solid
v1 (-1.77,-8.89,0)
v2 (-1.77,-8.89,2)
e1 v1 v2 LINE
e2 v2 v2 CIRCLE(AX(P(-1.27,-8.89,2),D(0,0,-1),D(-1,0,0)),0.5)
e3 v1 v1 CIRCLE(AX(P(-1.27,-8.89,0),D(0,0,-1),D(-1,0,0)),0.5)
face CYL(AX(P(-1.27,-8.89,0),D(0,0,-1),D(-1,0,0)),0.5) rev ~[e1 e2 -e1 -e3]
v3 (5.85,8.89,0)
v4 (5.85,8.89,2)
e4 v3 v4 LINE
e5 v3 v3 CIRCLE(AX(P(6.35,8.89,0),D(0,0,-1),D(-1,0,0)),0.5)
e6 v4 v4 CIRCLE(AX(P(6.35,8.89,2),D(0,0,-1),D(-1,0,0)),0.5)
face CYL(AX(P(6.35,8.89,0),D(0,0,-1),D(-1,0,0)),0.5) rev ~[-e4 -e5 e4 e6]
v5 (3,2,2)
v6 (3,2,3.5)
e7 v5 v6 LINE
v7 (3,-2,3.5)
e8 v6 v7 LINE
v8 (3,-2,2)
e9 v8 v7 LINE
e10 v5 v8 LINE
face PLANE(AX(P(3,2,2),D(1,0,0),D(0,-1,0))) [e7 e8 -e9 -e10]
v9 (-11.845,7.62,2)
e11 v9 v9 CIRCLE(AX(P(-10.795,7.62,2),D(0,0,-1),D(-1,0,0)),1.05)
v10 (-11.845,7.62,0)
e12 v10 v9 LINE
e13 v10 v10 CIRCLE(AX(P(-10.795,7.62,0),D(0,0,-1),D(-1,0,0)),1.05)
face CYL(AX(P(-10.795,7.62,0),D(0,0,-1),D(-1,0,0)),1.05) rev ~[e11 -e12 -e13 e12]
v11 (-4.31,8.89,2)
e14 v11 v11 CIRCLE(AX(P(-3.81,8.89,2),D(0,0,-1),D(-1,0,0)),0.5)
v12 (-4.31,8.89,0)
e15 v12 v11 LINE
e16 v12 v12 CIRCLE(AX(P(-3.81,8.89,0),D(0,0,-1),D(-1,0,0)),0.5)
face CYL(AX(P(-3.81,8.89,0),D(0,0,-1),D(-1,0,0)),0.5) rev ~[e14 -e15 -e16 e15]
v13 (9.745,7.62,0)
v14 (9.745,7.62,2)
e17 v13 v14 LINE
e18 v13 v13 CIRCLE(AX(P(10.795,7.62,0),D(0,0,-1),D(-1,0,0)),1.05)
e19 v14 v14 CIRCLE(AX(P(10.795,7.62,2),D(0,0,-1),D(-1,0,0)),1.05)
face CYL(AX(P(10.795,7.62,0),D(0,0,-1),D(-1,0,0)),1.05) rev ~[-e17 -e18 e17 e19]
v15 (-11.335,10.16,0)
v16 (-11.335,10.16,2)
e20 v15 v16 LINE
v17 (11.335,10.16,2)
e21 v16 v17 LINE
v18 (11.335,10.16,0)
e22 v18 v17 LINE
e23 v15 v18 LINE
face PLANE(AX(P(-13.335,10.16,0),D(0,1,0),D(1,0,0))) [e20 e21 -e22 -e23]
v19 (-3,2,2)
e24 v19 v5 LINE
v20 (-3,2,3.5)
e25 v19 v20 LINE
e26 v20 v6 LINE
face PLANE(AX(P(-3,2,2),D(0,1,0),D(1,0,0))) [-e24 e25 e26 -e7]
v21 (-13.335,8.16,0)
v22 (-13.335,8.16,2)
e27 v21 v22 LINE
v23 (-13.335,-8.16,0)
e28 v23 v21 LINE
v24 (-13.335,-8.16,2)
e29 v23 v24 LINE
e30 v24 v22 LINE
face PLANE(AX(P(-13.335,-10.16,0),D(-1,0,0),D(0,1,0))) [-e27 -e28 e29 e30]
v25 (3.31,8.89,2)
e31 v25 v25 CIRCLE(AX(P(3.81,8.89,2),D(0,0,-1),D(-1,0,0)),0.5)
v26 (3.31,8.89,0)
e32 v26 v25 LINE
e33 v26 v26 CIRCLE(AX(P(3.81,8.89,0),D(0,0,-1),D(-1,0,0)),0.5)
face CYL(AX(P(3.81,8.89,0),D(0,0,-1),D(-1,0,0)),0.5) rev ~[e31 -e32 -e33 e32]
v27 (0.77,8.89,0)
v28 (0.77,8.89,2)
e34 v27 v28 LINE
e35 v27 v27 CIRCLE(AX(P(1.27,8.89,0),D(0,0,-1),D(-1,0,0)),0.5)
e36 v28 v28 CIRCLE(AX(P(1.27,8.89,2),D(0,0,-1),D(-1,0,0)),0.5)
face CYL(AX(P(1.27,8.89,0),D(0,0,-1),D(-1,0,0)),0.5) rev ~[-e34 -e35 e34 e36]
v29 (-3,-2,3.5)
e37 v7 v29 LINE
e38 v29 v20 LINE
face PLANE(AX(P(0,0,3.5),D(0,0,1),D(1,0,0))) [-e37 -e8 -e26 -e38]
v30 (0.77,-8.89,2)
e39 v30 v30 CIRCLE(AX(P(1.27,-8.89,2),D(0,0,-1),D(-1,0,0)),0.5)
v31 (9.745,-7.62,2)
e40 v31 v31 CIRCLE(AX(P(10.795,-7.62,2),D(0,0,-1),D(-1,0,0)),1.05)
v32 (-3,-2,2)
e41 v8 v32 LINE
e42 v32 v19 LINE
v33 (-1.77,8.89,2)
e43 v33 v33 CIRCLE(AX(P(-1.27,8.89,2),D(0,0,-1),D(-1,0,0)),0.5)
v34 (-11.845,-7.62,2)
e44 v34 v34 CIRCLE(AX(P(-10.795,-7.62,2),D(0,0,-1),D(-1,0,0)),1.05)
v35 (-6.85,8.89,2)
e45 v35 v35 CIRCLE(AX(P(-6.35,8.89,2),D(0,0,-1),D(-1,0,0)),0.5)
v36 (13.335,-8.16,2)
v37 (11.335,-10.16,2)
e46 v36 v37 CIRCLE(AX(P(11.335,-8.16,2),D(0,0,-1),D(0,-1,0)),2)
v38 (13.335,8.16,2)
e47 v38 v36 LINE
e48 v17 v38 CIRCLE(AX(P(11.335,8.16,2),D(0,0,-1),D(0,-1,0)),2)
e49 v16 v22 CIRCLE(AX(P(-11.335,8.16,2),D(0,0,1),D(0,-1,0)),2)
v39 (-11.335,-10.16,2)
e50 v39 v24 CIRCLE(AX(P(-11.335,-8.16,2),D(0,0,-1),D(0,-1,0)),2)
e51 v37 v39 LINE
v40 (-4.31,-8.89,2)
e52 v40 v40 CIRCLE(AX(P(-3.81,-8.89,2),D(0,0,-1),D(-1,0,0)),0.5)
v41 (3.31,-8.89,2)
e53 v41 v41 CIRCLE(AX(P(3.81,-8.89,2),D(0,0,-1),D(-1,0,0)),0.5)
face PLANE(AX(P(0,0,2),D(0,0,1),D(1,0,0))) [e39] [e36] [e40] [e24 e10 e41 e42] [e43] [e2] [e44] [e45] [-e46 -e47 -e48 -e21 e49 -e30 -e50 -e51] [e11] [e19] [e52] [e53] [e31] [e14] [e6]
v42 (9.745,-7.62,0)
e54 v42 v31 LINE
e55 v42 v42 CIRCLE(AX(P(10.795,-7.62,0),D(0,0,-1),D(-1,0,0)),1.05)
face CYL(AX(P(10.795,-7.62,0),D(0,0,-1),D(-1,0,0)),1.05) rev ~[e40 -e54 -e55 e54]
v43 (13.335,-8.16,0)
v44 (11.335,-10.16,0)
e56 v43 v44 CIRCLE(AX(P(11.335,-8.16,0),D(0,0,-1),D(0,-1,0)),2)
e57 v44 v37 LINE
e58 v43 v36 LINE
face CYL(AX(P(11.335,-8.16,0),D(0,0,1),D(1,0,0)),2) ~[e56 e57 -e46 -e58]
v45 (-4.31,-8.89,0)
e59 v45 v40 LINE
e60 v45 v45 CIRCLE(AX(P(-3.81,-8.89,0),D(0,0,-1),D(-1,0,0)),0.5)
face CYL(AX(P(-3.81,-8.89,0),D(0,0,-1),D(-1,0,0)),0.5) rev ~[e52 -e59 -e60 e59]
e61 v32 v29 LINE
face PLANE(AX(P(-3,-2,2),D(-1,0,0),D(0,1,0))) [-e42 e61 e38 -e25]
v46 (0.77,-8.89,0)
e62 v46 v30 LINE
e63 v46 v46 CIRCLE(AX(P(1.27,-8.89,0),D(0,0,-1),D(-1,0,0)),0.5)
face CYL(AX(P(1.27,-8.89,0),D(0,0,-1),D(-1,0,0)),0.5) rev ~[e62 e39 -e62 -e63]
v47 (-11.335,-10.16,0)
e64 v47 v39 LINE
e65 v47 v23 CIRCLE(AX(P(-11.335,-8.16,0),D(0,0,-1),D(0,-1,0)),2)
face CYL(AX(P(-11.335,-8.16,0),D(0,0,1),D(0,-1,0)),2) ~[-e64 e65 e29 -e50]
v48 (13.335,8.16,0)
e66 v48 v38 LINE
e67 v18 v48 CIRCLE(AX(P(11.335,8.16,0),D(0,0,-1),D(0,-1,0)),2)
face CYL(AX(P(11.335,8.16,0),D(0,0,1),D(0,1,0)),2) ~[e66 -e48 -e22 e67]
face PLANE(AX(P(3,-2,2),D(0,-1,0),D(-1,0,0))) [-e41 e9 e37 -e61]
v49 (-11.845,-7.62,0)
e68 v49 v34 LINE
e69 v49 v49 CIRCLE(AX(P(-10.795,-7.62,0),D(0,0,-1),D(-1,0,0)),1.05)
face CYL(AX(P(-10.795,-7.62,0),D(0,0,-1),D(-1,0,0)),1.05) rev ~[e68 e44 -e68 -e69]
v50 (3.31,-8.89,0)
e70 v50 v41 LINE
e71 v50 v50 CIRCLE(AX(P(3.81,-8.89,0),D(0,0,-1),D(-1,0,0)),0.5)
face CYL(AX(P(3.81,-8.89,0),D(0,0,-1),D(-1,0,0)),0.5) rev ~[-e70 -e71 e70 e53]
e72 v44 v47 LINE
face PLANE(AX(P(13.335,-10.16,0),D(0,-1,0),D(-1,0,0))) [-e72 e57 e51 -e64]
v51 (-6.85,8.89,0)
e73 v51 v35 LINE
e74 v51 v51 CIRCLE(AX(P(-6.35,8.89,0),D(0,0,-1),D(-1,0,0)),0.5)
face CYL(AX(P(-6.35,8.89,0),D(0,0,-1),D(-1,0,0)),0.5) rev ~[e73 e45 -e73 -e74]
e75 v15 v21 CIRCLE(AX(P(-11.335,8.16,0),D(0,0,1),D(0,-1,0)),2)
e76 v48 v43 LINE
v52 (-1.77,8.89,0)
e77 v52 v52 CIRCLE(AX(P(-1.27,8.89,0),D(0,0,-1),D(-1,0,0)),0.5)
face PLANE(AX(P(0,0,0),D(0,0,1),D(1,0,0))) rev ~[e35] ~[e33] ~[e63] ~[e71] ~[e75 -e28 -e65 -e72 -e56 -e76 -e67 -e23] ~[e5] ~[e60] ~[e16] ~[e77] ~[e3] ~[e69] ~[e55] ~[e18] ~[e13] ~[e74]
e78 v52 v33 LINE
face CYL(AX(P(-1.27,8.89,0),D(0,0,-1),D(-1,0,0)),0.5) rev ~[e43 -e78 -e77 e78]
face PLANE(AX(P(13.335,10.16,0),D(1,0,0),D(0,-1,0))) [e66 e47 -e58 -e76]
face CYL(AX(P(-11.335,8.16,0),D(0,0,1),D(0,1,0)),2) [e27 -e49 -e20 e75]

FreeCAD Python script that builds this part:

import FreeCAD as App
import Part
import Sketcher
from FreeCAD import Vector
Q = App.Units.Quantity


def edges_at(feature, points):
    """Names of the edges that pass closest to the given points."""
    edges = feature.Shape.Edges
    near = lambda p: min(range(len(edges)), key=lambda i: edges[i].distToShape(Part.Vertex(*p))[0])
    return sorted({f"Edge{near(p) + 1}" for p in points})

doc = App.newDocument("Part")
body = doc.addObject("PartDesign::Body", "Body")

sketch1 = body.newObject("Sketcher::SketchObject", "Sketch")
sketch1.AttachmentSupport = (doc.getObject("XY_Plane"), [""])
sketch1.MapMode = "FlatFace"
sketch1.addGeometry([
    Part.LineSegment(Vector(13.335, 10.16, 0), Vector(-13.335, 10.16, 0)),
    Part.LineSegment(Vector(-13.335, 10.16, 0), Vector(-13.335, -10.16, 0)),
    Part.LineSegment(Vector(-13.335, -10.16, 0), Vector(13.335, -10.16, 0)),
    Part.LineSegment(Vector(13.335, -10.16, 0), Vector(13.335, 10.16, 0)),
], False)
sketch1.addConstraint([
    Sketcher.Constraint("Coincident", 0, 2, 1, 1),
    Sketcher.Constraint("Coincident", 1, 2, 2, 1),
    Sketcher.Constraint("Coincident", 2, 2, 3, 1),
    Sketcher.Constraint("Coincident", 3, 2, 0, 1),
    Sketcher.Constraint("Horizontal", 0),
    Sketcher.Constraint("Vertical", 1),
    Sketcher.Constraint("Horizontal", 2),
    Sketcher.Constraint("Vertical", 3),
    Sketcher.Constraint("Symmetric", 0, 2, 2, 2, -1, 1),
    Sketcher.Constraint("DistanceX", 0, 2, 0, 1, Q("26.67 mm")),
    Sketcher.Constraint("DistanceY", 1, 2, 1, 1, Q("20.32 mm")),
])
pad1 = body.newObject("PartDesign::Pad", "Pad")
pad1.Profile = sketch1
pad1.Length = 2
doc.recompute()

fillet = body.newObject("PartDesign::Fillet", "Fillet")
fillet.Base = (pad1, edges_at(pad1, [
    (-13.335, -10.16, 1),
    (13.335, -10.16, 1),
    (13.335, 10.16, 1),
    (-13.335, 10.16, 1),
]))
fillet.Radius = 2

sketch2 = body.newObject("Sketcher::SketchObject", "Sketch001")
sketch2.AttachmentSupport = (doc.getObject("XY_Plane"), [""])
sketch2.MapMode = "FlatFace"
sketch2.addGeometry([
    Part.Circle(Vector(-6.35, 8.89, 0), Vector(0, 0, 1), 0.5),
    Part.Circle(Vector(-3.81, 8.89, 0), Vector(0, 0, 1), 0.5),
    Part.Circle(Vector(-1.27, 8.89, 0), Vector(0, 0, 1), 0.5),
    Part.Circle(Vector(1.27, 8.89, 0), Vector(0, 0, 1), 0.5),
    Part.Circle(Vector(3.81, 8.89, 0), Vector(0, 0, 1), 0.5),
    Part.Circle(Vector(6.35, 8.89, 0), Vector(0, 0, 1), 0.5),
    Part.Circle(Vector(-3.81, -8.89, 0), Vector(0, 0, 1), 0.5),
    Part.Circle(Vector(-1.27, -8.89, 0), Vector(0, 0, 1), 0.5),
    Part.Circle(Vector(1.27, -8.89, 0), Vector(0, 0, 1), 0.5),
    Part.Circle(Vector(3.81, -8.89, 0), Vector(0, 0, 1), 0.5),
    Part.Circle(Vector(-10.795, -7.62, 0), Vector(0, 0, 1), 1.05),
    Part.Circle(Vector(10.795, -7.62, 0), Vector(0, 0, 1), 1.05),
    Part.Circle(Vector(10.795, 7.62, 0), Vector(0, 0, 1), 1.05),
    Part.Circle(Vector(-10.795, 7.62, 0), Vector(0, 0, 1), 1.05),
], False)
sketch2.addConstraint([
    Sketcher.Constraint("Equal", 0, 1),
    Sketcher.Constraint("Equal", 1, 2),
    Sketcher.Constraint("Equal", 2, 3),
    Sketcher.Constraint("Equal", 3, 4),
    Sketcher.Constraint("Equal", 4, 5),
    Sketcher.Constraint("Equal", 5, 6),
    Sketcher.Constraint("Equal", 6, 7),
    Sketcher.Constraint("Equal", 7, 8),
    Sketcher.Constraint("Equal", 8, 9),
    Sketcher.Constraint("Equal", 10, 11),
    Sketcher.Constraint("Equal", 11, 12),
    Sketcher.Constraint("Equal", 12, 13),
    Sketcher.Constraint("Symmetric", 4, 3, 6, 3, -1, 1),
    Sketcher.Constraint("Symmetric", 3, 3, 7, 3, -1, 1),
    Sketcher.Constraint("Symmetric", 2, 3, 8, 3, -1, 1),
    Sketcher.Constraint("Symmetric", 1, 3, 9, 3, -1, 1),
    Sketcher.Constraint("Symmetric", 10, 3, 12, 3, -1, 1),
    Sketcher.Constraint("Symmetric", 11, 3, 13, 3, -1, 1),
    Sketcher.Constraint("Symmetric", 2, 3, 3, 3, -2),
    Sketcher.Constraint("Symmetric", 1, 3, 4, 3, -2),
    Sketcher.Constraint("Symmetric", 0, 3, 5, 3, -2),
    Sketcher.Constraint("Symmetric", 10, 3, 11, 3, -2),
    Sketcher.Constraint("Horizontal", 0, 3, 1, 3),
    Sketcher.Constraint("Horizontal", 1, 3, 2, 3),
    Sketcher.Constraint("Diameter", 0, Q("1 mm")),
    Sketcher.Constraint("Diameter", 10, Q("2.1 mm")),
    Sketcher.Constraint("DistanceX", 0, 3, 5, 3, Q("12.7 mm")),
    Sketcher.Constraint("DistanceX", 0, 3, 1, 3, Q("2.54 mm")),
    Sketcher.Constraint("DistanceX", 1, 3, 2, 3, Q("2.54 mm")),
    Sketcher.Constraint("DistanceY", 6, 3, 1, 3, Q("17.78 mm")),
    Sketcher.Constraint("DistanceY", 10, 3, -1, 1, Q("7.62 mm")),
    Sketcher.Constraint("DistanceX", 10, 3, -1, 1, Q("10.795 mm")),
])
pocket1 = body.newObject("PartDesign::Pocket", "Pocket")
pocket1.Profile = sketch2
pocket1.Type = "ThroughAll"
pocket1.Reversed = True

sketch3 = body.newObject("Sketcher::SketchObject", "Sketch002")
sketch3.AttachmentSupport = (doc.getObject("XY_Plane"), [""])
sketch3.MapMode = "FlatFace"
sketch3.AttachmentOffset = App.Placement(Vector(0, 0, 2), App.Rotation())
sketch3.addGeometry([
    Part.LineSegment(Vector(3, 2, 0), Vector(-3, 2, 0)),
    Part.LineSegment(Vector(-3, 2, 0), Vector(-3, -2, 0)),
    Part.LineSegment(Vector(-3, -2, 0), Vector(3, -2, 0)),
    Part.LineSegment(Vector(3, -2, 0), Vector(3, 2, 0)),
], False)
sketch3.addConstraint([
    Sketcher.Constraint("Coincident", 0, 2, 1, 1),
    Sketcher.Constraint("Coincident", 1, 2, 2, 1),
    Sketcher.Constraint("Coincident", 2, 2, 3, 1),
    Sketcher.Constraint("Coincident", 3, 2, 0, 1),
    Sketcher.Constraint("Horizontal", 0),
    Sketcher.Constraint("Vertical", 1),
    Sketcher.Constraint("Horizontal", 2),
    Sketcher.Constraint("Vertical", 3),
    Sketcher.Constraint("Symmetric", 0, 2, 2, 2, -1, 1),
    Sketcher.Constraint("DistanceX", 0, 2, 0, 1, Q("6 mm")),
    Sketcher.Constraint("DistanceY", 1, 2, 1, 1, Q("4 mm")),
])
pad2 = body.newObject("PartDesign::Pad", "Pad001")
pad2.Profile = sketch3
pad2.Length = 1.5

doc.recompute()
